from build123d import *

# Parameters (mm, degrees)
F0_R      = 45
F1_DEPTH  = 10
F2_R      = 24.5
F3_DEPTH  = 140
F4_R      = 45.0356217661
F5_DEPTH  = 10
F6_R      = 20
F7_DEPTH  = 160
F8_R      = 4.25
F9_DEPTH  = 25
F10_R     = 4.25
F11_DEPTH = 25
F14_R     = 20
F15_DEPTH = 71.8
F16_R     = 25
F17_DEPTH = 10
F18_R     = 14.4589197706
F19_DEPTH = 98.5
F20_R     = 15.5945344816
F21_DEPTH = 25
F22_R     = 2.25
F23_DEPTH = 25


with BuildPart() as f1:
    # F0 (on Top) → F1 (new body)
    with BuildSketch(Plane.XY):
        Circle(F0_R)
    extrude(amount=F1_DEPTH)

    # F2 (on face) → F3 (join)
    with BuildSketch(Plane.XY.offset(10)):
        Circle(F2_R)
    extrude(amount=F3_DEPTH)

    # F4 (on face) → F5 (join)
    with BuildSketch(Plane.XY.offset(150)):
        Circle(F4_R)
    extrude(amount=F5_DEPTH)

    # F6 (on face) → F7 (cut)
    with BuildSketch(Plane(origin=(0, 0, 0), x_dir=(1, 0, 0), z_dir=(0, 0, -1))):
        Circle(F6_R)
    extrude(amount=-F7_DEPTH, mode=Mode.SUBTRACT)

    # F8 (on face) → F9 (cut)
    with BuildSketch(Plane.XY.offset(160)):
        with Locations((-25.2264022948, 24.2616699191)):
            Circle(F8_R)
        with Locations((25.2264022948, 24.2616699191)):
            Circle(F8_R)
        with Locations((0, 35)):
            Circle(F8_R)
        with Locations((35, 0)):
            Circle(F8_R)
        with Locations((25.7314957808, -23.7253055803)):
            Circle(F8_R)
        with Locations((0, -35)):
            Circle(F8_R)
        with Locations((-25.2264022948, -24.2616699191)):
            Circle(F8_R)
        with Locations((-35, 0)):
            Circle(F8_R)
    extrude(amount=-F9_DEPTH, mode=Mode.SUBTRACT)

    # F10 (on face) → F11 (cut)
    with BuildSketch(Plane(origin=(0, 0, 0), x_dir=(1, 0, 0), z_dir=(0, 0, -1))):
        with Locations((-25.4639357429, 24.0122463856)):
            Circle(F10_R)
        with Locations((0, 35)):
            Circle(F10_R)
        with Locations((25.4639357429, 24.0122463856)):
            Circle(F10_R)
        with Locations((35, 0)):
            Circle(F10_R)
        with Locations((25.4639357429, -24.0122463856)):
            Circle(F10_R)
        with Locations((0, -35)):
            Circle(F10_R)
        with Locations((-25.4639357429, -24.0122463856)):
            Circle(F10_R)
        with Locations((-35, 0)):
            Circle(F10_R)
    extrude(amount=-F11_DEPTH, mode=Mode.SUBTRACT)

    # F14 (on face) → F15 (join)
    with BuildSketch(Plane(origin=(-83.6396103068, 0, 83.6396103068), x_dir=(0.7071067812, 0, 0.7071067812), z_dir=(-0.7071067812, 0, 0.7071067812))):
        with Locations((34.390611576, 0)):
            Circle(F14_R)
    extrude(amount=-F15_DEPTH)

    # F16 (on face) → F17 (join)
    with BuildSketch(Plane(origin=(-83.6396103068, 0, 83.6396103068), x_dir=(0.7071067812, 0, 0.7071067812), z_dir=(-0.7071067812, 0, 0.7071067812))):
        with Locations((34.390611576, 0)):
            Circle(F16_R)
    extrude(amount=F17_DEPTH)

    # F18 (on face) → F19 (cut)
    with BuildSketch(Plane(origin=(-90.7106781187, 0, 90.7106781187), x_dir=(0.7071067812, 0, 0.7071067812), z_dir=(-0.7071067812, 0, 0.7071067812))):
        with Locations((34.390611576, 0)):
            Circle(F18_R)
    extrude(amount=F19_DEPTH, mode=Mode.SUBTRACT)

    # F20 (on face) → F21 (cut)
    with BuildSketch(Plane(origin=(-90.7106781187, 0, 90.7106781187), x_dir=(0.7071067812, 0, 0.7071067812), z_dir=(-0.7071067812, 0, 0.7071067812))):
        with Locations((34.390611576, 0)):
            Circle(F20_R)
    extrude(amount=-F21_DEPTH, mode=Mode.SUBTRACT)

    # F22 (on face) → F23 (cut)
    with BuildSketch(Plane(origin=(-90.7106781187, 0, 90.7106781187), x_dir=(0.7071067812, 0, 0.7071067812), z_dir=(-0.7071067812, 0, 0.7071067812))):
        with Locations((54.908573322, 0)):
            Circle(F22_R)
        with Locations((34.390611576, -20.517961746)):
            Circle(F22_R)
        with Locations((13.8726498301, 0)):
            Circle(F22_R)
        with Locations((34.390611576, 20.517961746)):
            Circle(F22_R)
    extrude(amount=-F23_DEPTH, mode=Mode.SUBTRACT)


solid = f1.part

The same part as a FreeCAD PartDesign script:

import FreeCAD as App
import Part
import Sketcher
from FreeCAD import Vector

doc = App.newDocument("Part")
body = doc.addObject("PartDesign::Body", "Body")

# Sketch on XY plane
sketch1 = body.newObject("Sketcher::SketchObject", "Sketch")
sketch1.AttachmentSupport = (doc.getObject("XY_Plane"), [""])
sketch1.MapMode = "FlatFace"
sketch1.addGeometry(Part.Circle(Vector(0, 0, 0), Vector(0, 0, 1), 45), False)
sketch1.addConstraint(Sketcher.Constraint("Coincident", 0, 3, -1, 1))
sketch1.addConstraint(Sketcher.Constraint("Diameter", 0, 90.0))
pad1 = body.newObject("PartDesign::Pad", "Pad")
pad1.Profile = sketch1
pad1.Length = 10

# Sketch on XY plane
sketch2 = body.newObject("Sketcher::SketchObject", "Sketch001")
sketch2.AttachmentSupport = (doc.getObject("XY_Plane"), [""])
sketch2.MapMode = "FlatFace"
sketch2.AttachmentOffset = App.Placement(Vector(0, 0, 10), App.Rotation())
sketch2.addGeometry(Part.Circle(Vector(0, 0, 0), Vector(0, 0, 1), 24.5), False)
sketch2.addConstraint(Sketcher.Constraint("Coincident", 0, 3, -1, 1))
sketch2.addConstraint(Sketcher.Constraint("Diameter", 0, 49.0))
pad2 = body.newObject("PartDesign::Pad", "Pad001")
pad2.Profile = sketch2
pad2.Length = 140

# Sketch on XY plane
sketch3 = body.newObject("Sketcher::SketchObject", "Sketch002")
sketch3.AttachmentSupport = (doc.getObject("XY_Plane"), [""])
sketch3.MapMode = "FlatFace"
sketch3.AttachmentOffset = App.Placement(Vector(0, 0, 150), App.Rotation())
sketch3.addGeometry(Part.Circle(Vector(0, 0, 0), Vector(0, 0, 1), 45.035622), False)
sketch3.addConstraint(Sketcher.Constraint("Coincident", 0, 3, -1, 1))
sketch3.addConstraint(Sketcher.Constraint("Diameter", 0, 90.071244))
pad3 = body.newObject("PartDesign::Pad", "Pad002")
pad3.Profile = sketch3
pad3.Length = 10

# Sketch on XY plane
sketch4 = body.newObject("Sketcher::SketchObject", "Sketch003")
sketch4.AttachmentSupport = (doc.getObject("XY_Plane"), [""])
sketch4.MapMode = "FlatFace"
sketch4.addGeometry(Part.Circle(Vector(0, 0, 0), Vector(0, 0, 1), 20), False)
sketch4.addConstraint(Sketcher.Constraint("Coincident", 0, 3, -1, 1))
sketch4.addConstraint(Sketcher.Constraint("Diameter", 0, 40.0))
pocket1 = body.newObject("PartDesign::Pocket", "Pocket")
pocket1.Profile = sketch4
pocket1.Length = 160
pocket1.Reversed = True

# Sketch on XY plane
sketch5 = body.newObject("Sketcher::SketchObject", "Sketch004")
sketch5.AttachmentSupport = (doc.getObject("XY_Plane"), [""])
sketch5.MapMode = "FlatFace"
sketch5.AttachmentOffset = App.Placement(Vector(0, 0, 160), App.Rotation())
sketch5.addGeometry(Part.Circle(Vector(-25.226402, 24.26167, 0), Vector(0, 0, 1), 4.25), False)
sketch5.addGeometry(Part.Circle(Vector(25.226402, 24.26167, 0), Vector(0, 0, 1), 4.25), False)
sketch5.addGeometry(Part.Circle(Vector(0, 35, 0), Vector(0, 0, 1), 4.25), False)
sketch5.addGeometry(Part.Circle(Vector(35, 0, 0), Vector(0, 0, 1), 4.25), False)
sketch5.addGeometry(Part.Circle(Vector(25.731496, -23.725306, 0), Vector(0, 0, 1), 4.25), False)
sketch5.addGeometry(Part.Circle(Vector(0, -35, 0), Vector(0, 0, 1), 4.25), False)
sketch5.addGeometry(Part.Circle(Vector(-25.226402, -24.26167, 0), Vector(0, 0, 1), 4.25), False)
sketch5.addGeometry(Part.Circle(Vector(-35, 0, 0), Vector(0, 0, 1), 4.25), False)
sketch5.addConstraint(Sketcher.Constraint("Equal", 0, 1))
sketch5.addConstraint(Sketcher.Constraint("Equal", 1, 2))
sketch5.addConstraint(Sketcher.Constraint("Equal", 2, 3))
sketch5.addConstraint(Sketcher.Constraint("Equal", 3, 4))
sketch5.addConstraint(Sketcher.Constraint("Equal", 4, 5))
sketch5.addConstraint(Sketcher.Constraint("Equal", 5, 6))
sketch5.addConstraint(Sketcher.Constraint("Equal", 6, 7))
sketch5.addConstraint(Sketcher.Constraint("Symmetric", 2, 3, 5, 3, -1, 1))
sketch5.addConstraint(Sketcher.Constraint("Symmetric", 1, 3, 6, 3, -1, 1))
sketch5.addConstraint(Sketcher.Constraint("Symmetric", 3, 3, 7, 3, -1, 1))
sketch5.addConstraint(Sketcher.Constraint("Symmetric", 0, 3, 1, 3, -2))
sketch5.addConstraint(Sketcher.Constraint("PointOnObject", 2, 3, -2))
sketch5.addConstraint(Sketcher.Constraint("PointOnObject", 3, 3, -1))
sketch5.addConstraint(Sketcher.Constraint("Diameter", 0, 8.5))
sketch5.addConstraint(Sketcher.Constraint("DistanceY", -1, 1, 2, 3, 35.0))
sketch5.addConstraint(Sketcher.Constraint("DistanceX", -1, 1, 3, 3, 35.0))
sketch5.addConstraint(Sketcher.Constraint("DistanceX", 0, 3, 4, 3, 50.957898))
sketch5.addConstraint(Sketcher.Constraint("DistanceY", -1, 1, 0, 3, 24.26167))
sketch5.addConstraint(Sketcher.Constraint("DistanceX", 0, 3, -1, 1, 25.226402))
sketch5.addConstraint(Sketcher.Constraint("DistanceY", 4, 3, -1, 1, 23.725306))
pocket2 = body.newObject("PartDesign::Pocket", "Pocket001")
pocket2.Profile = sketch5
pocket2.Length = 25

# Sketch on XY plane
sketch6 = body.newObject("Sketcher::SketchObject", "Sketch005")
sketch6.AttachmentSupport = (doc.getObject("XY_Plane"), [""])
sketch6.MapMode = "FlatFace"
sketch6.addGeometry(Part.Circle(Vector(-25.463936, -24.012246, 0), Vector(0, 0, 1), 4.25), False)
sketch6.addGeometry(Part.Circle(Vector(0, -35, 0), Vector(0, 0, 1), 4.25), False)
sketch6.addGeometry(Part.Circle(Vector(25.463936, -24.012246, 0), Vector(0, 0, 1), 4.25), False)
sketch6.addGeometry(Part.Circle(Vector(35, 0, 0), Vector(0, 0, 1), 4.25), False)
sketch6.addGeometry(Part.Circle(Vector(25.463936, 24.012246, 0), Vector(0, 0, 1), 4.25), False)
sketch6.addGeometry(Part.Circle(Vector(0, 35, 0), Vector(0, 0, 1), 4.25), False)
sketch6.addGeometry(Part.Circle(Vector(-25.463936, 24.012246, 0), Vector(0, 0, 1), 4.25), False)
sketch6.addGeometry(Part.Circle(Vector(-35, 0, 0), Vector(0, 0, 1), 4.25), False)
sketch6.addConstraint(Sketcher.Constraint("Equal", 0, 1))
sketch6.addConstraint(Sketcher.Constraint("Equal", 1, 2))
sketch6.addConstraint(Sketcher.Constraint("Equal", 2, 3))
sketch6.addConstraint(Sketcher.Constraint("Equal", 3, 4))
sketch6.addConstraint(Sketcher.Constraint("Equal", 4, 5))
sketch6.addConstraint(Sketcher.Constraint("Equal", 5, 6))
sketch6.addConstraint(Sketcher.Constraint("Equal", 6, 7))
sketch6.addConstraint(Sketcher.Constraint("Symmetric", 0, 3, 4, 3, -1, 1))
sketch6.addConstraint(Sketcher.Constraint("Symmetric", 1, 3, 5, 3, -1, 1))
sketch6.addConstraint(Sketcher.Constraint("Symmetric", 2, 3, 6, 3, -1, 1))
sketch6.addConstraint(Sketcher.Constraint("Symmetric", 3, 3, 7, 3, -1, 1))
sketch6.addConstraint(Sketcher.Constraint("Symmetric", 0, 3, 2, 3, -2))
sketch6.addConstraint(Sketcher.Constraint("PointOnObject", 1, 3, -2))
sketch6.addConstraint(Sketcher.Constraint("PointOnObject", 3, 3, -1))
sketch6.addConstraint(Sketcher.Constraint("Diameter", 0, 8.5))
sketch6.addConstraint(Sketcher.Constraint("DistanceY", 1, 3, -1, 1, 35.0))
sketch6.addConstraint(Sketcher.Constraint("DistanceX", -1, 1, 3, 3, 35.0))
sketch6.addConstraint(Sketcher.Constraint("DistanceX", 0, 3, 2, 3, 50.927871))
sketch6.addConstraint(Sketcher.Constraint("DistanceY", 0, 3, -1, 1, 24.012246))
pocket3 = body.newObject("PartDesign::Pocket", "Pocket002")
pocket3.Profile = sketch6
pocket3.Length = 25
pocket3.Reversed = True

# Sketch on an angled plane
sketch7 = body.newObject("Sketcher::SketchObject", "Sketch006")
sketch7.Placement = App.Placement(Vector(-83.63961, 0, 83.63961), App.Rotation(Vector(0.707106781, 0, 0.707106781), Vector(0, 0.999999999, 0), Vector(-0.707106781, 0, 0.707106781), "ZXY"))
sketch7.addGeometry(Part.Circle(Vector(34.390612, 0, 0), Vector(0, 0, 1), 20), False)
sketch7.addConstraint(Sketcher.Constraint("PointOnObject", 0, 3, -1))
sketch7.addConstraint(Sketcher.Constraint("Diameter", 0, 40.0))
sketch7.addConstraint(Sketcher.Constraint("DistanceX", -1, 1, 0, 3, 34.390612))
pad4 = body.newObject("PartDesign::Pad", "Pad003")
pad4.Profile = sketch7
pad4.Length = 71.8
pad4.Reversed = True

# Sketch on an angled plane
sketch8 = body.newObject("Sketcher::SketchObject", "Sketch007")
sketch8.Placement = App.Placement(Vector(-83.63961, 0, 83.63961), App.Rotation(Vector(0.707106781, 0, 0.707106781), Vector(0, 0.999999999, 0), Vector(-0.707106781, 0, 0.707106781), "ZXY"))
sketch8.addGeometry(Part.Circle(Vector(34.390612, 0, 0), Vector(0, 0, 1), 25), False)
sketch8.addConstraint(Sketcher.Constraint("PointOnObject", 0, 3, -1))
sketch8.addConstraint(Sketcher.Constraint("Diameter", 0, 50.0))
sketch8.addConstraint(Sketcher.Constraint("DistanceX", -1, 1, 0, 3, 34.390612))
pad5 = body.newObject("PartDesign::Pad", "Pad004")
pad5.Profile = sketch8
pad5.Length = 10

# Sketch on an angled plane
sketch9 = body.newObject("Sketcher::SketchObject", "Sketch008")
sketch9.Placement = App.Placement(Vector(-90.710678, 0, 90.710678), App.Rotation(Vector(0.707106781, 0, 0.707106781), Vector(0, 0.999999999, 0), Vector(-0.707106781, 0, 0.707106781), "ZXY"))
sketch9.addGeometry(Part.Circle(Vector(34.390612, 0, 0), Vector(0, 0, 1), 14.45892), False)
sketch9.addConstraint(Sketcher.Constraint("PointOnObject", 0, 3, -1))
sketch9.addConstraint(Sketcher.Constraint("Diameter", 0, 28.91784))
sketch9.addConstraint(Sketcher.Constraint("DistanceX", -1, 1, 0, 3, 34.390612))
pocket4 = body.newObject("PartDesign::Pocket", "Pocket003")
pocket4.Profile = sketch9
pocket4.Length = 98.5
pocket4.Reversed = True

# Sketch on an angled plane
sketch10 = body.newObject("Sketcher::SketchObject", "Sketch009")
sketch10.Placement = App.Placement(Vector(-90.710678, 0, 90.710678), App.Rotation(Vector(0.707106781, 0, 0.707106781), Vector(0, 0.999999999, 0), Vector(-0.707106781, 0, 0.707106781), "ZXY"))
sketch10.addGeometry(Part.Circle(Vector(34.390612, 0, 0), Vector(0, 0, 1), 15.594534), False)
sketch10.addConstraint(Sketcher.Constraint("PointOnObject", 0, 3, -1))
sketch10.addConstraint(Sketcher.Constraint("Diameter", 0, 31.189069))
sketch10.addConstraint(Sketcher.Constraint("DistanceX", -1, 1, 0, 3, 34.390612))
pocket5 = body.newObject("PartDesign::Pocket", "Pocket004")
pocket5.Profile = sketch10
pocket5.Length = 25

# Sketch on an angled plane
sketch11 = body.newObject("Sketcher::SketchObject", "Sketch010")
sketch11.Placement = App.Placement(Vector(-90.710678, 0, 90.710678), App.Rotation(Vector(0.707106781, 0, 0.707106781), Vector(0, 0.999999999, 0), Vector(-0.707106781, 0, 0.707106781), "ZXY"))
sketch11.addGeometry(Part.Circle(Vector(54.908573, 0, 0), Vector(0, 0, 1), 2.25), False)
sketch11.addGeometry(Part.Circle(Vector(34.390612, -20.517962, 0), Vector(0, 0, 1), 2.25), False)
sketch11.addGeometry(Part.Circle(Vector(13.87265, 0, 0), Vector(0, 0, 1), 2.25), False)
sketch11.addGeometry(Part.Circle(Vector(34.390612, 20.517962, 0), Vector(0, 0, 1), 2.25), False)
sketch11.addConstraint(Sketcher.Constraint("Equal", 0, 1))
sketch11.addConstraint(Sketcher.Constraint("Equal", 1, 2))
sketch11.addConstraint(Sketcher.Constraint("Equal", 2, 3))
sketch11.addConstraint(Sketcher.Constraint("Symmetric", 1, 3, 3, 3, -1))
sketch11.addConstraint(Sketcher.Constraint("PointOnObject", 0, 3, -1))
sketch11.addConstraint(Sketcher.Constraint("PointOnObject", 2, 3, -1))
sketch11.addConstraint(Sketcher.Constraint("Diameter", 0, 4.5))
sketch11.addConstraint(Sketcher.Constraint("DistanceX", -1, 1, 1, 3, 34.390612))
sketch11.addConstraint(Sketcher.Constraint("DistanceY", 1, 3, -1, 1, 20.517962))
sketch11.addConstraint(Sketcher.Constraint("DistanceX", -1, 1, 2, 3, 13.87265))
sketch11.addConstraint(Sketcher.Constraint("DistanceX", 1, 3, 0, 3, 20.517962))
pocket6 = body.newObject("PartDesign::Pocket", "Pocket005")
pocket6.Profile = sketch11
pocket6.Length = 25

doc.recompute()
